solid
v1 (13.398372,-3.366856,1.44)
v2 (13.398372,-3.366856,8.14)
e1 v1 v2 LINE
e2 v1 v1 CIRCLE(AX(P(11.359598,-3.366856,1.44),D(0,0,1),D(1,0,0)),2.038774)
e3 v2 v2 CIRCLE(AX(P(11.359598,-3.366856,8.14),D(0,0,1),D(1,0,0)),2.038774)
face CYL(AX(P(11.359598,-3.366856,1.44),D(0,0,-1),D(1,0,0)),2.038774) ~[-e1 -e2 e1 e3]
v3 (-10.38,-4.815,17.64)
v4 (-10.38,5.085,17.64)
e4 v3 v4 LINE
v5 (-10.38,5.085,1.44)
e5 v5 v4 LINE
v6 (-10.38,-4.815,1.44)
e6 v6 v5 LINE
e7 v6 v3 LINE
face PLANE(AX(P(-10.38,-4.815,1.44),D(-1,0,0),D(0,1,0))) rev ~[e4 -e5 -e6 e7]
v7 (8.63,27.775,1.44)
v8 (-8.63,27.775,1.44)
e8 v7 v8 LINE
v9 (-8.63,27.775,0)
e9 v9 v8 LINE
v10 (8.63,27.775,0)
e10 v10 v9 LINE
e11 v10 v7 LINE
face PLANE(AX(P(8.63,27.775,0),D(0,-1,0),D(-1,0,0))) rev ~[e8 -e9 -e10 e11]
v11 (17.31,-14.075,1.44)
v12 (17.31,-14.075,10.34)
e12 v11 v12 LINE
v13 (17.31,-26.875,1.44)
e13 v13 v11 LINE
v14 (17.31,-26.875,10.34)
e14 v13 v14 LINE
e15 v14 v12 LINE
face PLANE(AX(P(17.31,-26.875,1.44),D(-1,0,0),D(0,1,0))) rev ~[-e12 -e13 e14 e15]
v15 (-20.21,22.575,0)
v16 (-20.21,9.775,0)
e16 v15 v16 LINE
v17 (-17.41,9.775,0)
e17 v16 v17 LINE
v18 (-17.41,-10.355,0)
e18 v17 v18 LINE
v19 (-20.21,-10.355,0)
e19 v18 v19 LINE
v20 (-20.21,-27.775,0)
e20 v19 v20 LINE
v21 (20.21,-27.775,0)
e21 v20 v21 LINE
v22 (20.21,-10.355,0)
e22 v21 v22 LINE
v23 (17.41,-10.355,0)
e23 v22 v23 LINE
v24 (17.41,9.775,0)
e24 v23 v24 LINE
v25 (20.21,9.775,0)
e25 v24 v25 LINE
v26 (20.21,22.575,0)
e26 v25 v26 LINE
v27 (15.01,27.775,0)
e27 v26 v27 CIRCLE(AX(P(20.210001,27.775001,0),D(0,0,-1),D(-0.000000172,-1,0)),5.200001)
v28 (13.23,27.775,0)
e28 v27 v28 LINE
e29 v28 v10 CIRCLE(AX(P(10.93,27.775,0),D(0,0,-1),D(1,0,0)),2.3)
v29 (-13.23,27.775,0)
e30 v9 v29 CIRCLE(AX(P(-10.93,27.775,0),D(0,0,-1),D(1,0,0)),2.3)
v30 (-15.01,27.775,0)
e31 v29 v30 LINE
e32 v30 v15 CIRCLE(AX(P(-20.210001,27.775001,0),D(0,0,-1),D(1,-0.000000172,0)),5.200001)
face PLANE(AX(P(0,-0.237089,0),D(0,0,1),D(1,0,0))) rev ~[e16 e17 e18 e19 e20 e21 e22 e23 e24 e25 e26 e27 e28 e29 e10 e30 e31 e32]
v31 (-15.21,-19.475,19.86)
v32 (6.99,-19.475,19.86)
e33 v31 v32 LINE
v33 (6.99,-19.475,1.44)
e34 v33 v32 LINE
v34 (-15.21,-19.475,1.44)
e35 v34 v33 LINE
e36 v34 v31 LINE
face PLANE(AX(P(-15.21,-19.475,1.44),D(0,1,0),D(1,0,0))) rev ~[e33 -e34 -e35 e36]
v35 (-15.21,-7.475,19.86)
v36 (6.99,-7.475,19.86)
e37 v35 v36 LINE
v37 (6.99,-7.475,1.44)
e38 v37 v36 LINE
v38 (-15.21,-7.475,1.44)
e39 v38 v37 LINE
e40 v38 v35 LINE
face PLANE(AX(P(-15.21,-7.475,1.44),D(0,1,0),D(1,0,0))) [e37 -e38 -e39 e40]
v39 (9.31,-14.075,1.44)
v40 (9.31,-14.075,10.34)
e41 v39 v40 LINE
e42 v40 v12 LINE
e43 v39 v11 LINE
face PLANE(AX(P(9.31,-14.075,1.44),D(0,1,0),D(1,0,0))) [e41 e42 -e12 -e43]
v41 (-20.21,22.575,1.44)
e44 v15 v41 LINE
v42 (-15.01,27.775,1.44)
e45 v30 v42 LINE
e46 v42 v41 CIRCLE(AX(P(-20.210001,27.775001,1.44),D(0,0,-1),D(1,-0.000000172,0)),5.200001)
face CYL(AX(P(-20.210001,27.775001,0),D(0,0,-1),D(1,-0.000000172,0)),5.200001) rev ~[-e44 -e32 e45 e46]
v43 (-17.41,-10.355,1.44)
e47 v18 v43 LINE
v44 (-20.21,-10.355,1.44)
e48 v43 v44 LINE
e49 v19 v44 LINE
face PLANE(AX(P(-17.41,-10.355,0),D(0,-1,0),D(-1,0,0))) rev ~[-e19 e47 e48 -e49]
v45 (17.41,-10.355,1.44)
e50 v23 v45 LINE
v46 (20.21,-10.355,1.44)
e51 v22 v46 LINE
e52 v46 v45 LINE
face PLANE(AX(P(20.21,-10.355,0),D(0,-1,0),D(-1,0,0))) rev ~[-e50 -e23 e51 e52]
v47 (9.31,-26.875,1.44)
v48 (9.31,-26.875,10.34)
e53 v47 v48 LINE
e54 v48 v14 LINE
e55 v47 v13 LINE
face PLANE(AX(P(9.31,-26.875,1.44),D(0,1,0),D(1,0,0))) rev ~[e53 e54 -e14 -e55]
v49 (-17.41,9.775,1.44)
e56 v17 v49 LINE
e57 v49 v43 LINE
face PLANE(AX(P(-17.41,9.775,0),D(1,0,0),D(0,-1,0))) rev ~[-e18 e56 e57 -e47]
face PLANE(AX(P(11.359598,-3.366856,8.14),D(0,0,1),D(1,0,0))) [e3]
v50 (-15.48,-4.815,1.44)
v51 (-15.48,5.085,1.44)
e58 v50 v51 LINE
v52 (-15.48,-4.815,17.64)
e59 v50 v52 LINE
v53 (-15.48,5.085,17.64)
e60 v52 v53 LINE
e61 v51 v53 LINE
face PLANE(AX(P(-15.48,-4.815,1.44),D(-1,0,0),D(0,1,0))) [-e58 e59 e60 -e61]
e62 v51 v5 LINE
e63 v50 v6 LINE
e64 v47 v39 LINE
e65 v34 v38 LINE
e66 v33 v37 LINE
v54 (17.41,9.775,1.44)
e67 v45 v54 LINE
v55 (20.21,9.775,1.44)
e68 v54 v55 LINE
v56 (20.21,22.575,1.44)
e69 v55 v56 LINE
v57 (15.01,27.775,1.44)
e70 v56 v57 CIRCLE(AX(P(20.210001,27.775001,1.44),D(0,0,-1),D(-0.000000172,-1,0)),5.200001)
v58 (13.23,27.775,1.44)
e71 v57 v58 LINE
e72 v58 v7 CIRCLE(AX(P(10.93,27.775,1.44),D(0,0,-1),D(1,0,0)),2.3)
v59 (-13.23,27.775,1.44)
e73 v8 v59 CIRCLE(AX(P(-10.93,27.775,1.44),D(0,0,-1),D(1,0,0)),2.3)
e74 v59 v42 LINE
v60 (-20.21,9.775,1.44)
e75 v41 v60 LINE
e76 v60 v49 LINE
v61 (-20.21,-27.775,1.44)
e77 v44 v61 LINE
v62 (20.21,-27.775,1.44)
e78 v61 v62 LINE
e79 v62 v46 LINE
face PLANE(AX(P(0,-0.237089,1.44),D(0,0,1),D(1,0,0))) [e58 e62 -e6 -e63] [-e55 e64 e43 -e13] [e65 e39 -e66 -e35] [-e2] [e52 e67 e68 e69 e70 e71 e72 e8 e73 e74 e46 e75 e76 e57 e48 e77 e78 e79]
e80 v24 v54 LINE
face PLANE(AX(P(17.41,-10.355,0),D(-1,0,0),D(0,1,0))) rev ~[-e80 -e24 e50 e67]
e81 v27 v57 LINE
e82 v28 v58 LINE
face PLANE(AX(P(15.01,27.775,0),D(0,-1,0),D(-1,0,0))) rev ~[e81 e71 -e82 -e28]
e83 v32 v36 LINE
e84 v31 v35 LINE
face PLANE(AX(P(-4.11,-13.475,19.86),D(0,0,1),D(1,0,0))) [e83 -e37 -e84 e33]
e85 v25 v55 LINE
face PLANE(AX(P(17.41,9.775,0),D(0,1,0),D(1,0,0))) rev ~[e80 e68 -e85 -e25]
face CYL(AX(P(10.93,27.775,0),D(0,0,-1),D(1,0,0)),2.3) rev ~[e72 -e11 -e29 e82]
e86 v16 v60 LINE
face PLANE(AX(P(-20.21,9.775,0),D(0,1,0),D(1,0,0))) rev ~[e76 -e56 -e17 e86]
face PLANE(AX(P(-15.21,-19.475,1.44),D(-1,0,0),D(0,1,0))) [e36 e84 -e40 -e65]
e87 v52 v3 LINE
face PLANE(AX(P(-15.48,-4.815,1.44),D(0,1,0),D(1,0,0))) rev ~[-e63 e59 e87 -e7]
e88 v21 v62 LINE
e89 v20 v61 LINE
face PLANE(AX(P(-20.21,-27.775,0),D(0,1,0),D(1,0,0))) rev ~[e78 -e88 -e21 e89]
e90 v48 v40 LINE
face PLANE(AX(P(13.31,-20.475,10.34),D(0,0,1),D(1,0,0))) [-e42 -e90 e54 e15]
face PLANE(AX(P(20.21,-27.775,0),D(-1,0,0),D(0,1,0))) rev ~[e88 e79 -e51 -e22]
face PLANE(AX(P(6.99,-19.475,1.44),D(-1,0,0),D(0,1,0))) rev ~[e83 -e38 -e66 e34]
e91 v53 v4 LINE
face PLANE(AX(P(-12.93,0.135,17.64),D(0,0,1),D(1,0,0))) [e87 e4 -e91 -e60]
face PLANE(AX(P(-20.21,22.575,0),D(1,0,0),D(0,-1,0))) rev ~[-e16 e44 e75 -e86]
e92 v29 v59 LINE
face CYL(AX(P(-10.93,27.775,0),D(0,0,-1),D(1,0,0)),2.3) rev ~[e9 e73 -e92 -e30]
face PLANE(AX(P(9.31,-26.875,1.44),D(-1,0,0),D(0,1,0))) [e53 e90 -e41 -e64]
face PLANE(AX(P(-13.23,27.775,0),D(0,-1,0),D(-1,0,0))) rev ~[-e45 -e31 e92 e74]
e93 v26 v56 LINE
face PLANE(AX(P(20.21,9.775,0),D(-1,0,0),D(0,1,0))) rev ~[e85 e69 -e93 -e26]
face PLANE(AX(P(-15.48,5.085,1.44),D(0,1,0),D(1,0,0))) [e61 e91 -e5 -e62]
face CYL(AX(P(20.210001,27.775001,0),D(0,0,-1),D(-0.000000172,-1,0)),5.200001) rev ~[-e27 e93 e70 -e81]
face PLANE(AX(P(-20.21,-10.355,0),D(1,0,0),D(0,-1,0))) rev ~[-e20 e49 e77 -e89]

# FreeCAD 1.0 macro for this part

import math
import FreeCAD as App
import Part
import Sketcher
from FreeCAD import Vector


def add_polygon(sketch, points):
    """Adds a closed chain of lines whose ends are joined by coincident constraints."""
    first, n = sketch.GeometryCount, len(points)
    for a, b in zip(points, points[1:] + points[:1]):
        sketch.addGeometry(Part.LineSegment(App.Vector(*a, 0), App.Vector(*b, 0)), False)
    for i in range(n):
        sketch.addConstraint(Sketcher.Constraint("Coincident", first + i, 2, first + (i + 1) % n, 1))

doc = App.newDocument("Part")
params = doc.addObject("Spreadsheet::Sheet", "Params")
for row, (alias, value) in enumerate([
    ("sketch1_radius", "5.200001 mm"),
    ("sketch1_radius2", "2.3 mm"),
    ("sketch1_width", "2.8 mm"),
    ("sketch1_height", "12.8 mm"),
    ("sketch1_width2", "40.42 mm"),
    ("pad1_length", "1.44 mm"),
    ("sketch2_height", "12 mm"),
    ("sketch2_width", "22.2 mm"),
    ("pad2_length", "18.42 mm"),
    ("sketch3_width", "5.1 mm"),
    ("sketch3_height", "9.9 mm"),
    ("pad3_length", "16.2 mm"),
    ("sketch4_width", "8 mm"),
    ("sketch4_height", "12.8 mm"),
    ("pad4_length", "8.9 mm"),
    ("pad5_length", "6.7 mm"),
], start=1):
    params.set(f"A{row}", alias)
    params.set(f"B{row}", "=" + value)
    params.setAlias(f"B{row}", alias)

body = doc.addObject("PartDesign::Body", "Body")

# Sketch on XY plane
sketch1 = doc.addObject("Sketcher::SketchObject", "Sketch")
body.addObject(sketch1)
sketch1.AttachmentSupport = (doc.XY_Plane, [""])
sketch1.MapMode = "FlatFace"
sketch1.addGeometry(Part.LineSegment(Vector(-20.21, -27.775, 0), Vector(20.21, -27.775, 0)), False)
sketch1.addGeometry(Part.LineSegment(Vector(20.21, -27.775, 0), Vector(20.21, -10.355, 0)), False)
sketch1.addGeometry(Part.LineSegment(Vector(20.21, -10.355, 0), Vector(17.41, -10.355, 0)), False)
sketch1.addGeometry(Part.LineSegment(Vector(17.41, -10.355, 0), Vector(17.41, 9.775, 0)), False)
sketch1.addGeometry(Part.LineSegment(Vector(17.41, 9.775, 0), Vector(20.21, 9.775, 0)), False)
sketch1.addGeometry(Part.LineSegment(Vector(20.21, 9.775, 0), Vector(20.21, 22.575, 0)), False)
sketch1.addGeometry(Part.ArcOfCircle(Part.Circle(Vector(20.210001, 27.775001, 0), Vector(0, 0, 1), 5.200001), math.radians(-179.99999), math.radians(-90.00001)), False)
sketch1.addGeometry(Part.LineSegment(Vector(15.01, 27.775, 0), Vector(13.23, 27.775, 0)), False)
sketch1.addGeometry(Part.ArcOfCircle(Part.Circle(Vector(10.93, 27.775, 0), Vector(0, 0, 1), 2.3), math.radians(180), math.radians(360)), False)
sketch1.addGeometry(Part.LineSegment(Vector(8.63, 27.775, 0), Vector(-8.63, 27.775, 0)), False)
sketch1.addGeometry(Part.ArcOfCircle(Part.Circle(Vector(-10.93, 27.775, 0), Vector(0, 0, 1), 2.3), math.radians(180), math.radians(360)), False)
sketch1.addGeometry(Part.LineSegment(Vector(-13.23, 27.775, 0), Vector(-15.01, 27.775, 0)), False)
sketch1.addGeometry(Part.ArcOfCircle(Part.Circle(Vector(-20.210001, 27.775001, 0), Vector(0, 0, 1), 5.200001), math.radians(-89.99999), math.radians(-0.00001)), False)
sketch1.addGeometry(Part.LineSegment(Vector(-20.21, 22.575, 0), Vector(-20.21, 9.775, 0)), False)
sketch1.addGeometry(Part.LineSegment(Vector(-20.21, 9.775, 0), Vector(-17.41, 9.775, 0)), False)
sketch1.addGeometry(Part.LineSegment(Vector(-17.41, 9.775, 0), Vector(-17.41, -10.355, 0)), False)
sketch1.addGeometry(Part.LineSegment(Vector(-17.41, -10.355, 0), Vector(-20.21, -10.355, 0)), False)
sketch1.addGeometry(Part.LineSegment(Vector(-20.21, -10.355, 0), Vector(-20.21, -27.775, 0)), False)
sketch1.addConstraint(Sketcher.Constraint("Coincident", 0, 2, 1, 1))
sketch1.addConstraint(Sketcher.Constraint("Coincident", 1, 2, 2, 1))
sketch1.addConstraint(Sketcher.Constraint("Coincident", 2, 2, 3, 1))
sketch1.addConstraint(Sketcher.Constraint("Coincident", 3, 2, 4, 1))
sketch1.addConstraint(Sketcher.Constraint("Coincident", 4, 2, 5, 1))
sketch1.addConstraint(Sketcher.Constraint("Coincident", 5, 2, 6, 2))
sketch1.addConstraint(Sketcher.Constraint("Coincident", 6, 1, 7, 1))
sketch1.addConstraint(Sketcher.Constraint("Coincident", 7, 2, 8, 2))
sketch1.addConstraint(Sketcher.Constraint("Coincident", 8, 1, 9, 1))
sketch1.addConstraint(Sketcher.Constraint("Coincident", 9, 2, 10, 2))
sketch1.addConstraint(Sketcher.Constraint("Coincident", 10, 1, 11, 1))
sketch1.addConstraint(Sketcher.Constraint("Coincident", 11, 2, 12, 2))
sketch1.addConstraint(Sketcher.Constraint("Coincident", 12, 1, 13, 1))
sketch1.addConstraint(Sketcher.Constraint("Coincident", 13, 2, 14, 1))
sketch1.addConstraint(Sketcher.Constraint("Coincident", 14, 2, 15, 1))
sketch1.addConstraint(Sketcher.Constraint("Coincident", 15, 2, 16, 1))
sketch1.addConstraint(Sketcher.Constraint("Coincident", 16, 2, 17, 1))
sketch1.addConstraint(Sketcher.Constraint("Coincident", 17, 2, 0, 1))
sketch1.addConstraint(Sketcher.Constraint("Horizontal", 0))
sketch1.addConstraint(Sketcher.Constraint("Vertical", 1))
sketch1.addConstraint(Sketcher.Constraint("Horizontal", 2))
sketch1.addConstraint(Sketcher.Constraint("Vertical", 3))
sketch1.addConstraint(Sketcher.Constraint("Horizontal", 4))
sketch1.addConstraint(Sketcher.Constraint("Vertical", 5))
sketch1.addConstraint(Sketcher.Constraint("Horizontal", 7))
sketch1.addConstraint(Sketcher.Constraint("Horizontal", 9))
sketch1.addConstraint(Sketcher.Constraint("Horizontal", 11))
sketch1.addConstraint(Sketcher.Constraint("Vertical", 13))
sketch1.addConstraint(Sketcher.Constraint("Horizontal", 14))
sketch1.addConstraint(Sketcher.Constraint("Vertical", 15))
sketch1.addConstraint(Sketcher.Constraint("Horizontal", 16))
sketch1.addConstraint(Sketcher.Constraint("Vertical", 17))
sketch1.addConstraint(Sketcher.Constraint("Equal", 8, 10))
sketch1.addConstraint(Sketcher.Constraint("Equal", 6, 12))
sketch1.addConstraint(Sketcher.Constraint("Symmetric", 8, 3, 10, 3, -2))
sketch1.addConstraint(Sketcher.Constraint("Symmetric", 6, 3, 12, 3, -2))
sketch1.addConstraint(Sketcher.Constraint("Symmetric", 4, 2, 13, 2, -2))
sketch1.addConstraint(Sketcher.Constraint("Symmetric", 2, 2, 15, 2, -2))
sketch1.addConstraint(Sketcher.Constraint("Horizontal", 6, 3, 8, 3))
sketch1.addConstraint(Sketcher.Constraint("Horizontal", 12, 3, 6, 1))
sketch1.addConstraint(Sketcher.Constraint("Horizontal", 7, 2, 8, 1))
sketch1.addConstraint(Sketcher.Constraint("Horizontal", 9, 2, 10, 1))
sketch1.addConstraint(Sketcher.Constraint("Vertical", 6, 3, 0, 2))
sketch1.addConstraint(Sketcher.Constraint("Vertical", 1, 2, 4, 2))
sketch1.addConstraint(Sketcher.Constraint("Vertical", 13, 2, 16, 2))
sketch1.addConstraint(Sketcher.Constraint("Radius", 6, 5.200001))
sketch1.addConstraint(Sketcher.Constraint("Radius", 8, 2.3))
sketch1.addConstraint(Sketcher.Constraint("DistanceX", 2, 2, 2, 1, 2.8))
sketch1.addConstraint(Sketcher.Constraint("DistanceY", 5, 1, 5, 2, 12.8))
sketch1.addConstraint(Sketcher.Constraint("DistanceX", 0, 1, 0, 2, 40.42))
sketch1.addConstraint(Sketcher.Constraint("DistanceX", 7, 2, 7, 1, 1.78))
sketch1.addConstraint(Sketcher.Constraint("DistanceY", 1, 1, 1, 2, 17.42))
sketch1.addConstraint(Sketcher.Constraint("DistanceY", 3, 1, 3, 2, 20.13))
sketch1.addConstraint(Sketcher.Constraint("DistanceY", -1, 1, 6, 3, 27.775001))
sketch1.setExpression("Constraints[45]", "Params.sketch1_radius")
sketch1.setExpression("Constraints[46]", "Params.sketch1_radius2")
sketch1.setExpression("Constraints[47]", "Params.sketch1_width")
sketch1.setExpression("Constraints[48]", "Params.sketch1_height")
sketch1.setExpression("Constraints[49]", "Params.sketch1_width2")
pad1 = doc.addObject("PartDesign::Pad", "Pad")
body.addObject(pad1)
pad1.Profile = sketch1
pad1.setExpression("Length", "Params.pad1_length")

# Sketch on XY plane
sketch2 = doc.addObject("Sketcher::SketchObject", "Sketch001")
body.addObject(sketch2)
sketch2.AttachmentSupport = (doc.XY_Plane, [""])
sketch2.MapMode = "FlatFace"
sketch2.AttachmentOffset = App.Placement(Vector(0, 0, 1.44), App.Rotation())
add_polygon(sketch2, [(-15.21, -7.475), (-15.21, -19.475), (6.99, -19.475), (6.99, -7.475)])  # lines 0-3
sketch2.addConstraint(Sketcher.Constraint("Vertical", 0))
sketch2.addConstraint(Sketcher.Constraint("Horizontal", 1))
sketch2.addConstraint(Sketcher.Constraint("Vertical", 2))
sketch2.addConstraint(Sketcher.Constraint("Horizontal", 3))
sketch2.addConstraint(Sketcher.Constraint("DistanceY", 0, 2, 0, 1, 12.0))
sketch2.addConstraint(Sketcher.Constraint("DistanceX", 1, 1, 1, 2, 22.2))
sketch2.addConstraint(Sketcher.Constraint("DistanceX", 0, 2, -1, 1, 15.21))
sketch2.addConstraint(Sketcher.Constraint("DistanceY", 0, 2, -1, 1, 19.475))
sketch2.setExpression("Constraints[8]", "Params.sketch2_height")
sketch2.setExpression("Constraints[9]", "Params.sketch2_width")
pad2 = doc.addObject("PartDesign::Pad", "Pad001")
body.addObject(pad2)
pad2.Profile = sketch2
pad2.setExpression("Length", "Params.pad2_length")

# Sketch on XY plane
sketch3 = doc.addObject("Sketcher::SketchObject", "Sketch002")
body.addObject(sketch3)
sketch3.AttachmentSupport = (doc.XY_Plane, [""])
sketch3.MapMode = "FlatFace"
sketch3.AttachmentOffset = App.Placement(Vector(0, 0, 1.44), App.Rotation())
add_polygon(sketch3, [(-15.48, 5.085), (-15.48, -4.815), (-10.38, -4.815), (-10.38, 5.085)])  # lines 0-3
sketch3.addConstraint(Sketcher.Constraint("Vertical", 0))
sketch3.addConstraint(Sketcher.Constraint("Horizontal", 1))
sketch3.addConstraint(Sketcher.Constraint("Vertical", 2))
sketch3.addConstraint(Sketcher.Constraint("Horizontal", 3))
sketch3.addConstraint(Sketcher.Constraint("DistanceX", 1, 1, 1, 2, 5.1))
sketch3.addConstraint(Sketcher.Constraint("DistanceY", 0, 2, 0, 1, 9.9))
sketch3.addConstraint(Sketcher.Constraint("DistanceX", 0, 2, -1, 1, 15.48))
sketch3.addConstraint(Sketcher.Constraint("DistanceY", 0, 2, -1, 1, 4.815))
sketch3.setExpression("Constraints[8]", "Params.sketch3_width")
sketch3.setExpression("Constraints[9]", "Params.sketch3_height")
pad3 = doc.addObject("PartDesign::Pad", "Pad002")
body.addObject(pad3)
pad3.Profile = sketch3
pad3.setExpression("Length", "Params.pad3_length")

# Sketch on XY plane
sketch4 = doc.addObject("Sketcher::SketchObject", "Sketch003")
body.addObject(sketch4)
sketch4.AttachmentSupport = (doc.XY_Plane, [""])
sketch4.MapMode = "FlatFace"
sketch4.AttachmentOffset = App.Placement(Vector(0, 0, 1.44), App.Rotation())
add_polygon(sketch4, [(9.31, -14.075), (9.31, -26.875), (17.31, -26.875), (17.31, -14.075)])  # lines 0-3
sketch4.addConstraint(Sketcher.Constraint("Vertical", 0))
sketch4.addConstraint(Sketcher.Constraint("Horizontal", 1))
sketch4.addConstraint(Sketcher.Constraint("Vertical", 2))
sketch4.addConstraint(Sketcher.Constraint("Horizontal", 3))
sketch4.addConstraint(Sketcher.Constraint("DistanceX", 1, 1, 1, 2, 8.0))
sketch4.addConstraint(Sketcher.Constraint("DistanceY", 0, 2, 0, 1, 12.8))
sketch4.addConstraint(Sketcher.Constraint("DistanceX", -1, 1, 0, 2, 9.31))
sketch4.addConstraint(Sketcher.Constraint("DistanceY", 0, 2, -1, 1, 26.875))
sketch4.setExpression("Constraints[8]", "Params.sketch4_width")
sketch4.setExpression("Constraints[9]", "Params.sketch4_height")
pad4 = doc.addObject("PartDesign::Pad", "Pad003")
body.addObject(pad4)
pad4.Profile = sketch4
pad4.setExpression("Length", "Params.pad4_length")

# Sketch on XY plane
sketch5 = doc.addObject("Sketcher::SketchObject", "Sketch004")
body.addObject(sketch5)
sketch5.AttachmentSupport = (doc.XY_Plane, [""])
sketch5.MapMode = "FlatFace"
sketch5.AttachmentOffset = App.Placement(Vector(0, 0, 1.44), App.Rotation())
sketch5.addGeometry(Part.Circle(Vector(11.359598, -3.366856, 0), Vector(0, 0, 1), 2.038774), False)
sketch5.addConstraint(Sketcher.Constraint("Diameter", 0, 4.077548))
sketch5.addConstraint(Sketcher.Constraint("DistanceX", -1, 1, 0, 3, 11.359598))
sketch5.addConstraint(Sketcher.Constraint("DistanceY", 0, 3, -1, 1, 3.366856))
pad5 = doc.addObject("PartDesign::Pad", "Pad004")
body.addObject(pad5)
pad5.Profile = sketch5
pad5.setExpression("Length", "Params.pad5_length")

doc.recompute()
